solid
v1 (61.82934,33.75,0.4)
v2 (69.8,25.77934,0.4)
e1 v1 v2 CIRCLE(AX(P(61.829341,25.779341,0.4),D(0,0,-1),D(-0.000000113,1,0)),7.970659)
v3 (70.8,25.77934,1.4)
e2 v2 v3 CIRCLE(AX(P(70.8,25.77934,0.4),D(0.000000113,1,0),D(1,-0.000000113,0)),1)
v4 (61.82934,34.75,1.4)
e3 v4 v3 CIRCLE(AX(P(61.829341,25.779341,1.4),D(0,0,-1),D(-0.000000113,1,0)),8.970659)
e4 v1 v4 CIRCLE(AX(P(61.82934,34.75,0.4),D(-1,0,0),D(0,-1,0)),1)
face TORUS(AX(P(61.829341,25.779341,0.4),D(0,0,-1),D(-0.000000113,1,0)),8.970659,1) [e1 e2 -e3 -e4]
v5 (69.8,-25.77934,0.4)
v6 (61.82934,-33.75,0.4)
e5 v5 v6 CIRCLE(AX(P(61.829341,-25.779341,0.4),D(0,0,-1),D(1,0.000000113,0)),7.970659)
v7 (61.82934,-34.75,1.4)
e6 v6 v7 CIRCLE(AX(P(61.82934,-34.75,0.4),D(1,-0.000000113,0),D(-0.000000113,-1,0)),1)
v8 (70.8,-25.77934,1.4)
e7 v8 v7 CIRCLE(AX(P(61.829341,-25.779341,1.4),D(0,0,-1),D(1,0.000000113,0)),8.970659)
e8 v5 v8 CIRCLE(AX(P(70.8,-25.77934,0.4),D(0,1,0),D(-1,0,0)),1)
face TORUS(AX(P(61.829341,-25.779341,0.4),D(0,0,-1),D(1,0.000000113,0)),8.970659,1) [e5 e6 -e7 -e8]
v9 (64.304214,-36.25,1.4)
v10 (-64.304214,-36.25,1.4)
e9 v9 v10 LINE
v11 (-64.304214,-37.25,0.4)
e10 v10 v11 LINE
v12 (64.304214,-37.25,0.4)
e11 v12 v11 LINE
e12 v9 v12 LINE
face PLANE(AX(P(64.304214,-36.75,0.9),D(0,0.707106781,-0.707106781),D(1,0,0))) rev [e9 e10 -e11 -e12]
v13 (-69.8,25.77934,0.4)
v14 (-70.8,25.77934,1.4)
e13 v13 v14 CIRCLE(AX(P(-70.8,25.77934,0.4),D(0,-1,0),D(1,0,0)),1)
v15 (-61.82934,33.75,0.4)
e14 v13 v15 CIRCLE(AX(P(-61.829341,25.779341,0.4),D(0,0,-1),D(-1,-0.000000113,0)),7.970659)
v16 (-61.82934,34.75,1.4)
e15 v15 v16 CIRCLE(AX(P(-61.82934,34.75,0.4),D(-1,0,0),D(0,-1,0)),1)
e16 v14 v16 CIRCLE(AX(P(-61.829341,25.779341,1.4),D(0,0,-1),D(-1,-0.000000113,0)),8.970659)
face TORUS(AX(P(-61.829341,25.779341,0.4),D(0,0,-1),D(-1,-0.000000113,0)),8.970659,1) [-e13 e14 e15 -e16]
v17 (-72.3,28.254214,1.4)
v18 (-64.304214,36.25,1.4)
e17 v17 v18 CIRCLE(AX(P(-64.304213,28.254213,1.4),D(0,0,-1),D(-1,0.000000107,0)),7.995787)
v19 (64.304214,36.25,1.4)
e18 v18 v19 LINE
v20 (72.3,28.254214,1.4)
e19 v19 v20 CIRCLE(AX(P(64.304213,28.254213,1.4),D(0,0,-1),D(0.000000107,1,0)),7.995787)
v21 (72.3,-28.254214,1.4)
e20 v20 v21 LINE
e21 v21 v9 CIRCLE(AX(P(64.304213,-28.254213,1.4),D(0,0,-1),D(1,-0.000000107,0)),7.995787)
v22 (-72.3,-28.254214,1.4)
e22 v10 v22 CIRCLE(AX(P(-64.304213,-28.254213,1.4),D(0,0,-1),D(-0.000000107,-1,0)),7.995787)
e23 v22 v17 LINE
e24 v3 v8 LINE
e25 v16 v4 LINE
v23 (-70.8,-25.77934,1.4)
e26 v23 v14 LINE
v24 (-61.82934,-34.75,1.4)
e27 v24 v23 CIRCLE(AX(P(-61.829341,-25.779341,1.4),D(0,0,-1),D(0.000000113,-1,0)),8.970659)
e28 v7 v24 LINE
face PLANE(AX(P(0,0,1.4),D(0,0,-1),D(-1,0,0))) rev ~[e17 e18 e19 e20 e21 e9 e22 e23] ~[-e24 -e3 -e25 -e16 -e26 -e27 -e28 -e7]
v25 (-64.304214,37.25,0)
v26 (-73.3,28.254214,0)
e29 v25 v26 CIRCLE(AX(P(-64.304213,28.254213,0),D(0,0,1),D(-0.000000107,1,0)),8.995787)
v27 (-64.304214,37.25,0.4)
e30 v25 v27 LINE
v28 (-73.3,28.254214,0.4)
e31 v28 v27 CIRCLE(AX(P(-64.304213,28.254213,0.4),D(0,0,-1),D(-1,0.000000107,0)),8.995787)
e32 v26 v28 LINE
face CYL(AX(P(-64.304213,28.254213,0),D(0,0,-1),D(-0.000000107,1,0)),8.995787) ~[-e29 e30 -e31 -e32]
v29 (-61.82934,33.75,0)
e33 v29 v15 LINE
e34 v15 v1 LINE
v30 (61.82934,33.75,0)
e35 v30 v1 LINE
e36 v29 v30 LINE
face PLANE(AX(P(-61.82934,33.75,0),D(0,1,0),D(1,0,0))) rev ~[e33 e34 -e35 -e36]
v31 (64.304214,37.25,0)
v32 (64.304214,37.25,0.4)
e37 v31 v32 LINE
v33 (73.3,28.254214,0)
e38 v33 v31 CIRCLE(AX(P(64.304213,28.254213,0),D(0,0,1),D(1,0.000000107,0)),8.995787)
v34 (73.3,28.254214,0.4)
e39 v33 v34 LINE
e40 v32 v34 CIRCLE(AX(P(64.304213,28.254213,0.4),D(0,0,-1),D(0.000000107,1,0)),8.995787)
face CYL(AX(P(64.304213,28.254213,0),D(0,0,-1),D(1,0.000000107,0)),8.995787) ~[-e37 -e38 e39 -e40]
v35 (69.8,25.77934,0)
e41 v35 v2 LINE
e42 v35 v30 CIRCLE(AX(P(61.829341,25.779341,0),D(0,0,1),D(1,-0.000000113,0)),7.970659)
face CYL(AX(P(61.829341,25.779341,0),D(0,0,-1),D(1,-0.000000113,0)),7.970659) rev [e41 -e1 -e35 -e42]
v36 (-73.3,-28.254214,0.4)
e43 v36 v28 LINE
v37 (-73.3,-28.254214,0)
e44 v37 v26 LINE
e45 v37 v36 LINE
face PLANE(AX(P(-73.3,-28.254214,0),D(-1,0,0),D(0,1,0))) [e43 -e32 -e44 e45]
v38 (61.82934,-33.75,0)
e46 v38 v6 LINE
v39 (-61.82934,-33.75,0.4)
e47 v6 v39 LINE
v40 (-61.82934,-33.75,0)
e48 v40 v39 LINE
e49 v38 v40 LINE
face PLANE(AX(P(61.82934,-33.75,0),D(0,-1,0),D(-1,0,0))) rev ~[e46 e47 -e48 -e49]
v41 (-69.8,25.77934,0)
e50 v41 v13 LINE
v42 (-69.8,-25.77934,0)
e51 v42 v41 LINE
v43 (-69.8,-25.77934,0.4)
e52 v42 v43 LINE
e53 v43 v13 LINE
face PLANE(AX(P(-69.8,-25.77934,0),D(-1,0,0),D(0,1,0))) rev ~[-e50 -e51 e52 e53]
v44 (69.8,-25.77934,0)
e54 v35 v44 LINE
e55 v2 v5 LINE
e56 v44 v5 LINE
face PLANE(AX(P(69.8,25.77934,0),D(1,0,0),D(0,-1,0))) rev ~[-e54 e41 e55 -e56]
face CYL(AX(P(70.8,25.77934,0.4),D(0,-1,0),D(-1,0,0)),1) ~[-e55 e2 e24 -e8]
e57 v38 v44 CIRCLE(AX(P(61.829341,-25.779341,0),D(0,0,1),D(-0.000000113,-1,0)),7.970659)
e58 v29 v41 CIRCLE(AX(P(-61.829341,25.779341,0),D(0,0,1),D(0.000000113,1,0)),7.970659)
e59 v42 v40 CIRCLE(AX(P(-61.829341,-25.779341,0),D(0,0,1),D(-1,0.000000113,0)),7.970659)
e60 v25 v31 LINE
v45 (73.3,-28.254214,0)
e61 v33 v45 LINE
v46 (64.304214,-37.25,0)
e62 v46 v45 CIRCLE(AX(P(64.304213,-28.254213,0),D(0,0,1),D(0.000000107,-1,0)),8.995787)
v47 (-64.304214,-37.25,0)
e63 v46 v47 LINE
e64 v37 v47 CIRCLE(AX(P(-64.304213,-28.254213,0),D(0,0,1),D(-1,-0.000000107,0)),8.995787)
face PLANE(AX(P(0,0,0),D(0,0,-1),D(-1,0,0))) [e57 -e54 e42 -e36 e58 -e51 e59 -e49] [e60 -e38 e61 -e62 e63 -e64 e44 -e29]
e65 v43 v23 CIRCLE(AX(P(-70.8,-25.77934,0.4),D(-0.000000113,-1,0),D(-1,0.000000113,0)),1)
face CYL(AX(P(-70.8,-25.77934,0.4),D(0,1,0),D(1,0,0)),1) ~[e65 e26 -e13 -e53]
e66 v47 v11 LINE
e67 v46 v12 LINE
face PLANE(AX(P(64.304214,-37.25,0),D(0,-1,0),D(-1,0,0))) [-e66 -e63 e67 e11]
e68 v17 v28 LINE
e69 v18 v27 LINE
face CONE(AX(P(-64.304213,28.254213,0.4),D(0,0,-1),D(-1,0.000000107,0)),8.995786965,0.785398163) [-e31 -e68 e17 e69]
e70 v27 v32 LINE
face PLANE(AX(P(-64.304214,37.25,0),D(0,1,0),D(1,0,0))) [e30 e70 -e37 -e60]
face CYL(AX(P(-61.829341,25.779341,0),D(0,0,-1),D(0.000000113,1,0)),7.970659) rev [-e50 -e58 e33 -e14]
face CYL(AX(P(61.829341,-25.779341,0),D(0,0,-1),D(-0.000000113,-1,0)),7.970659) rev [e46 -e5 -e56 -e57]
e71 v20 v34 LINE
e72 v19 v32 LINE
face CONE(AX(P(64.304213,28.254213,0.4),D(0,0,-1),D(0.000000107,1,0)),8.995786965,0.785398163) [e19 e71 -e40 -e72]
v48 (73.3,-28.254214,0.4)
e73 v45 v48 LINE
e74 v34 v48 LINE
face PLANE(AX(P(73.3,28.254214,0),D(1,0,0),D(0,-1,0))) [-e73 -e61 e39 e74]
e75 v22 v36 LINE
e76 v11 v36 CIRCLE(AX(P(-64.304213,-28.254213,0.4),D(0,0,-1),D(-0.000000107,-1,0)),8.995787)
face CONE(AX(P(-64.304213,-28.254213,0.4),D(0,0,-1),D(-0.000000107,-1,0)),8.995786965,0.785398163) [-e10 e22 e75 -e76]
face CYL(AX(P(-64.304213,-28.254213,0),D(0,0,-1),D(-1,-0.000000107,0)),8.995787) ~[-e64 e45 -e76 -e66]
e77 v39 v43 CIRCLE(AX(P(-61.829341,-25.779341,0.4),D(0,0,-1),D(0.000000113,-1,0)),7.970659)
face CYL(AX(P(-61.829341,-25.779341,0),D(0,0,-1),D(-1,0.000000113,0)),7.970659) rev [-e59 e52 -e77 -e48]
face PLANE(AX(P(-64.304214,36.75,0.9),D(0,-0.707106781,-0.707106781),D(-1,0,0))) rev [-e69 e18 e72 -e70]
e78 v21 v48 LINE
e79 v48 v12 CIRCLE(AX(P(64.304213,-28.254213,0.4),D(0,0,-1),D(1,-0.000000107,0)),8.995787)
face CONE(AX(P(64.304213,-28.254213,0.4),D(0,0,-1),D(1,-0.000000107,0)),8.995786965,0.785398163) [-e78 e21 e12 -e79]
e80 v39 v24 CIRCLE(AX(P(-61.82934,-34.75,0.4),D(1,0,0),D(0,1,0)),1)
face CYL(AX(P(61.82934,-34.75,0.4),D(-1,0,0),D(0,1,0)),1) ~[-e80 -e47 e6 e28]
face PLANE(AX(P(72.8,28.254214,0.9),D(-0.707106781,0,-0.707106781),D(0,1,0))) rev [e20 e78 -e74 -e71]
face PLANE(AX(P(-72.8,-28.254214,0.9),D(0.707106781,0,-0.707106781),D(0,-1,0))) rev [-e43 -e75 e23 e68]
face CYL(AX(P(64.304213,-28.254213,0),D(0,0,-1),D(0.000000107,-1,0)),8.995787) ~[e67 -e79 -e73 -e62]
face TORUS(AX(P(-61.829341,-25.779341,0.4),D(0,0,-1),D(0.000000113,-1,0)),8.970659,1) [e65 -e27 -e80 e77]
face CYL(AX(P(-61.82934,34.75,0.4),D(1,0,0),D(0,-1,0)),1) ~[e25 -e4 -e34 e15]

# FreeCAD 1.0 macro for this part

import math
import FreeCAD as App
import Part
import Sketcher

V = App.Vector


def edges_at(feature, points):
    """Names of the edges that pass closest to the given points."""
    edges = feature.Shape.Edges
    near = lambda p: min(range(len(edges)), key=lambda i: edges[i].distToShape(Part.Vertex(*p))[0])
    return sorted({f"Edge{near(p) + 1}" for p in points})

doc = App.newDocument("Part")
body = doc.addObject("PartDesign::Body", "Body")

# Sketch on XY plane
sketch1 = doc.addObject("Sketcher::SketchObject", "Sketch")
body.addObject(sketch1)
sketch1.AttachmentSupport = (doc.XY_Plane, [""])
sketch1.MapMode = "FlatFace"
sketch1.addGeometry([
    Part.LineSegment(V(64, 37, 0), V(-64, 37, 0)),  # 0
    Part.ArcOfCircle(Part.Circle(V(-64, 28, 0), V(0, 0, 1), 9), math.radians(90), math.radians(180)),  # 1
    Part.LineSegment(V(-73, 28, 0), V(-73, -28, 0)),  # 2
    Part.ArcOfCircle(Part.Circle(V(-64, -28, 0), V(0, 0, 1), 9), math.radians(-180), math.radians(-90)),  # 3
    Part.LineSegment(V(-64, -37, 0), V(64, -37, 0)),  # 4
    Part.ArcOfCircle(Part.Circle(V(64, -28, 0), V(0, 0, 1), 9), math.radians(-90), math.radians(0)),  # 5
    Part.LineSegment(V(73, -28, 0), V(73, 28, 0)),  # 6
    Part.ArcOfCircle(Part.Circle(V(64, 28, 0), V(0, 0, 1), 9), math.radians(0), math.radians(90)),  # 7
    Part.LineSegment(V(-62, 34, 0), V(62, 34, 0)),  # 8
    Part.ArcOfCircle(Part.Circle(V(62, 26, 0), V(0, 0, 1), 8), math.radians(0), math.radians(90)),  # 9
    Part.LineSegment(V(70, 26, 0), V(70, -26, 0)),  # 10
    Part.ArcOfCircle(Part.Circle(V(62, -26, 0), V(0, 0, 1), 8), math.radians(-90), math.radians(0)),  # 11
    Part.LineSegment(V(62, -34, 0), V(-62, -34, 0)),  # 12
    Part.ArcOfCircle(Part.Circle(V(-62, -26, 0), V(0, 0, 1), 8), math.radians(180), math.radians(270)),  # 13
    Part.LineSegment(V(-70, -26, 0), V(-70, 26, 0)),  # 14
    Part.ArcOfCircle(Part.Circle(V(-62, 26, 0), V(0, 0, 1), 8), math.radians(90), math.radians(180)),  # 15
], False)
sketch1.addConstraint([
    Sketcher.Constraint("Tangent", 0, 2, 1, 1),
    Sketcher.Constraint("Tangent", 1, 2, 2, 1),
    Sketcher.Constraint("Tangent", 2, 2, 3, 1),
    Sketcher.Constraint("Tangent", 3, 2, 4, 1),
    Sketcher.Constraint("Tangent", 4, 2, 5, 1),
    Sketcher.Constraint("Tangent", 5, 2, 6, 1),
    Sketcher.Constraint("Tangent", 6, 2, 7, 1),
    Sketcher.Constraint("Tangent", 7, 2, 0, 1),
    Sketcher.Constraint("Tangent", 8, 2, 9, 2),
    Sketcher.Constraint("Tangent", 9, 1, 10, 1),
    Sketcher.Constraint("Tangent", 10, 2, 11, 2),
    Sketcher.Constraint("Tangent", 11, 1, 12, 1),
    Sketcher.Constraint("Tangent", 12, 2, 13, 2),
    Sketcher.Constraint("Tangent", 13, 1, 14, 1),
    Sketcher.Constraint("Tangent", 14, 2, 15, 2),
    Sketcher.Constraint("Tangent", 15, 1, 8, 1),
    Sketcher.Constraint("Horizontal", 0),
    Sketcher.Constraint("Vertical", 2),
    Sketcher.Constraint("Horizontal", 4),
    Sketcher.Constraint("Vertical", 6),
    Sketcher.Constraint("Horizontal", 8),
    Sketcher.Constraint("Vertical", 10),
    Sketcher.Constraint("Horizontal", 12),
    Sketcher.Constraint("Vertical", 14),
    Sketcher.Constraint("Equal", 1, 3),
    Sketcher.Constraint("Equal", 3, 5),
    Sketcher.Constraint("Equal", 5, 7),
    Sketcher.Constraint("Equal", 9, 11),
    Sketcher.Constraint("Equal", 11, 13),
    Sketcher.Constraint("Equal", 13, 15),
    Sketcher.Constraint("Symmetric", 1, 3, 5, 3, -1, 1),
    Sketcher.Constraint("Symmetric", 9, 3, 13, 3, -1, 1),
    Sketcher.Constraint("DistanceX", 1, 2, -1, 1, 73.3),
    Sketcher.Constraint("DistanceX", -1, 1, 9, 1, 69.8),
    Sketcher.Constraint("DistanceY", 8, 2, 7, 2, 3.5),
    Sketcher.Constraint("DistanceY", -1, 1, 0, 2, 37.25),
    Sketcher.Constraint("Radius", 9, 7.970659),
    Sketcher.Constraint("Radius", 1, 8.995787),
])
pad1 = doc.addObject("PartDesign::Pad", "Pad")
body.addObject(pad1)
pad1.Profile = sketch1
pad1.Length = 1.4
doc.recompute()

fillet = doc.addObject("PartDesign::Fillet", "Fillet")
body.addObject(fillet)
fillet.Base = (pad1, edges_at(pad1, [
    (0, 33.75, 1.4),
    (-67.465, 31.415, 1.4),
    (-69.8, 0, 1.4),
    (-67.465, -31.415, 1.4),
    (0, -33.75, 1.4),
    (67.465, -31.415, 1.4),
    (69.8, 0, 1.4),
    (67.465, 31.415, 1.4),
]))
fillet.Radius = 1
doc.recompute()

chamfer = doc.addObject("PartDesign::Chamfer", "Chamfer")
body.addObject(chamfer)
chamfer.Base = (fillet, edges_at(fillet, [
    (0, 37.25, 1.4),
    (70.665, 34.615, 1.4),
    (73.3, 0, 1.4),
    (70.665, -34.615, 1.4),
    (0, -37.25, 1.4),
    (-70.665, -34.615, 1.4),
    (-73.3, 0, 1.4),
    (-70.665, 34.615, 1.4),
]))
chamfer.Size = 1

doc.recompute()
